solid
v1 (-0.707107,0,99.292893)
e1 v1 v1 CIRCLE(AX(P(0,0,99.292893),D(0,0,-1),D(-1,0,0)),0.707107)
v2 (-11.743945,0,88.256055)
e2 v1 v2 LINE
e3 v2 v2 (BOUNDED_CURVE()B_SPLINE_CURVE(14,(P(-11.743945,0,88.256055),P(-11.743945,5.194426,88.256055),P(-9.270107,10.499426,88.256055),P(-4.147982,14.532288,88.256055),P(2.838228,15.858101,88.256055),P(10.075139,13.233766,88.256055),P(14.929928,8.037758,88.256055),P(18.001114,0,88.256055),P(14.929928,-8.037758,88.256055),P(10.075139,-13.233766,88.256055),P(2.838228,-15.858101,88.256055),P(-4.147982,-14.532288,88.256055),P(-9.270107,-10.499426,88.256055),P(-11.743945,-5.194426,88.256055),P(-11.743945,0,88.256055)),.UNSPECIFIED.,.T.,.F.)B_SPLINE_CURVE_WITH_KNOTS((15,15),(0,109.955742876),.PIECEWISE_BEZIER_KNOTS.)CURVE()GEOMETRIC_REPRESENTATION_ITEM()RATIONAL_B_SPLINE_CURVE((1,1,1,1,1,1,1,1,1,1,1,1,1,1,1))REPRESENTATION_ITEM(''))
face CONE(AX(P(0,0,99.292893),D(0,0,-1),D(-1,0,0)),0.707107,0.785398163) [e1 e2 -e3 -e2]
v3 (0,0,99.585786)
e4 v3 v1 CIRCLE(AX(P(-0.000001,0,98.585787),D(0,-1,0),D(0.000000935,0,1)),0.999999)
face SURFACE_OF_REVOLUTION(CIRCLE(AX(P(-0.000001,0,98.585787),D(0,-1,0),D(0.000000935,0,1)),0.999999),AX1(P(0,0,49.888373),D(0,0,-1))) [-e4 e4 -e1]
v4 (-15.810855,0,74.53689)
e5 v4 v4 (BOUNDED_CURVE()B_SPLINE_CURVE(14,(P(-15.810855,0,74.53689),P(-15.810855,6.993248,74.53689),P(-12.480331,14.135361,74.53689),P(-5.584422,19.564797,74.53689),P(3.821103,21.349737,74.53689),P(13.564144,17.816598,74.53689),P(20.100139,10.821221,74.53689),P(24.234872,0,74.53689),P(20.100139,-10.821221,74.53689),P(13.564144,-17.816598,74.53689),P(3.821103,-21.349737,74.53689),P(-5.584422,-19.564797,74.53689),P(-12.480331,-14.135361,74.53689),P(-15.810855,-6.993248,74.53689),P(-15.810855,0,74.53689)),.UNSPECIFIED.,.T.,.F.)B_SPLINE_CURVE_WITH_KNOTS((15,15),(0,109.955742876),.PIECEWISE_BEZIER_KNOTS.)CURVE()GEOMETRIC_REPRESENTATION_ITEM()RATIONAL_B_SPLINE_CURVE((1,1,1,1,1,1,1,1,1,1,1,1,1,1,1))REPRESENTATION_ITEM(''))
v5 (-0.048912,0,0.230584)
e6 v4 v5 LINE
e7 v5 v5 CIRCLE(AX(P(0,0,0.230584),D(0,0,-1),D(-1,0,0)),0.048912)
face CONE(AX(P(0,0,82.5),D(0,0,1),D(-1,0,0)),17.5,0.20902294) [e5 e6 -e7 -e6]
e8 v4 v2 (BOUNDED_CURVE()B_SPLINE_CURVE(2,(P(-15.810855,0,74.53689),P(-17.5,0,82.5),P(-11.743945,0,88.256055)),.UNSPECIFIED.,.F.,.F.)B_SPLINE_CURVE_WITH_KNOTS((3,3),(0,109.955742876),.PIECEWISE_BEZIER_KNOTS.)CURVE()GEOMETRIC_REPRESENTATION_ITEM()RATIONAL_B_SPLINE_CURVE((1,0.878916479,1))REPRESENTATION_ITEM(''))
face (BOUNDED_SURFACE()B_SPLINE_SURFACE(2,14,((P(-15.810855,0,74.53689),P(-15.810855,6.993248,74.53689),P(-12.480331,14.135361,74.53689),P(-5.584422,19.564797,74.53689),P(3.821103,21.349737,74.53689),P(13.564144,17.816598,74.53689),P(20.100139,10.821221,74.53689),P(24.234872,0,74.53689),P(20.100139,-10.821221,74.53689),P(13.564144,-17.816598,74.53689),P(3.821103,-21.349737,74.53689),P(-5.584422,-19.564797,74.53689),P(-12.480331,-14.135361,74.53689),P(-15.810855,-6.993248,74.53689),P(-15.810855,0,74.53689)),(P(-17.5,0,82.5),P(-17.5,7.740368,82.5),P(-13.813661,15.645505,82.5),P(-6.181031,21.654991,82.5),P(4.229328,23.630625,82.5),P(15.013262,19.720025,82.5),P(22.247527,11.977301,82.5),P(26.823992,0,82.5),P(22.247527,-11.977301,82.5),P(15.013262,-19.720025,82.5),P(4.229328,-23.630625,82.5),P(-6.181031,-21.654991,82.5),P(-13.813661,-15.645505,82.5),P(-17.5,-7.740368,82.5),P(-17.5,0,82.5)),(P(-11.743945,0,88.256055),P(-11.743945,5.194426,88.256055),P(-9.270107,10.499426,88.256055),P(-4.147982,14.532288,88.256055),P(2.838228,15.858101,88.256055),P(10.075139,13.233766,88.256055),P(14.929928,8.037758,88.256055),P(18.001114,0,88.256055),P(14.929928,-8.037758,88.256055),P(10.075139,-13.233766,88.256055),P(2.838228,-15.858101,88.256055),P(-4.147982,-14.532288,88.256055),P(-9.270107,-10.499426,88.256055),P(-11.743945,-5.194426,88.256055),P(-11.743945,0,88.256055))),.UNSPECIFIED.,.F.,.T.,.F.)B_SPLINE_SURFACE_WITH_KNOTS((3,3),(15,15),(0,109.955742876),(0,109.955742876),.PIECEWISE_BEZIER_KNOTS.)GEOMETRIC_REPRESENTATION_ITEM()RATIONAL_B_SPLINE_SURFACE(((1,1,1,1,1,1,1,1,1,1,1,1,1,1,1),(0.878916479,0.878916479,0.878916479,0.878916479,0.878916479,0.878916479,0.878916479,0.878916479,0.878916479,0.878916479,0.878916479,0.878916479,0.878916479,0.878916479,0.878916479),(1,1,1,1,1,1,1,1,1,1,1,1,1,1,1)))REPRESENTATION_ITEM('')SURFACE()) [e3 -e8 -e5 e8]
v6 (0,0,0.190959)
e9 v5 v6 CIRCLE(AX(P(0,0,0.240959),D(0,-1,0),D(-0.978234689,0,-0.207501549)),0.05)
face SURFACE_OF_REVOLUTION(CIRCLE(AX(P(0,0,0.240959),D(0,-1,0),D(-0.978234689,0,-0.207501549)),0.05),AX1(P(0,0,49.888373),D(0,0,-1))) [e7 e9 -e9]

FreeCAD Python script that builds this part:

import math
import FreeCAD as App
import Part
import Sketcher
from FreeCAD import Vector
Q = App.Units.Quantity


def edges_at(feature, points):
    """Names of the edges that pass closest to the given points."""
    edges = feature.Shape.Edges
    near = lambda p: min(range(len(edges)), key=lambda i: edges[i].distToShape(Part.Vertex(*p))[0])
    return sorted({f"Edge{near(p) + 1}" for p in points})

doc = App.newDocument("Part")
body = doc.addObject("PartDesign::Body", "Body")

# Sketch on XZ plane
sketch1 = body.newObject("Sketcher::SketchObject", "Sketch")
sketch1.AttachmentSupport = (doc.getObject("XZ_Plane"), [""])
sketch1.MapMode = "FlatFace"
sketch1.addGeometry([
    Part.LineSegment(Vector(-17.5, 82.5, 0), Vector(-0.05, 0.23, 0)),  # 0
    Part.ArcOfCircle(Part.Circle(Vector(0, 0.24, 0), Vector(0, 0, 1), 0.05), math.radians(-168), math.radians(-90)),  # 1
    Part.LineSegment(Vector(0, 0.19, 0), Vector(0, 99.59, 0)),  # 2
    Part.ArcOfCircle(Part.Circle(Vector(0, 98.59, 0), Vector(0, 0, 1), 1), math.radians(90), math.radians(135)),  # 3
    Part.LineSegment(Vector(-0.71, 99.29, 0), Vector(-17.5, 82.5, 0)),  # 4
], False)
sketch1.addConstraint([
    Sketcher.Constraint("Coincident", 0, 2, 1, 1),
    Sketcher.Constraint("Coincident", 1, 2, 2, 1),
    Sketcher.Constraint("Coincident", 2, 2, 3, 1),
    Sketcher.Constraint("Tangent", 3, 2, 4, 1),
    Sketcher.Constraint("Coincident", 4, 2, 0, 1),
    Sketcher.Constraint("Vertical", 2),
    Sketcher.Constraint("PointOnObject", 1, 3, -2),
    Sketcher.Constraint("PointOnObject", 3, 3, -2),
    Sketcher.Constraint("PointOnObject", 1, 2, -2),
    Sketcher.Constraint("Radius", 3, Q("0.999999 mm")),
    Sketcher.Constraint("Angle", 4, Q("-135 deg")),
    Sketcher.Constraint("Radius", 1, Q("0.05 mm")),
    Sketcher.Constraint("DistanceX", 4, 2, -1, 1, Q("17.5 mm")),
    Sketcher.Constraint("DistanceY", -1, 1, 4, 2, Q("82.5 mm")),
    Sketcher.Constraint("DistanceY", 2, 1, 2, 2, Q("99.394827 mm")),
    Sketcher.Constraint("DistanceX", 0, 2, -1, 1, Q("0.048912 mm")),
])
revolution = body.newObject("PartDesign::Revolution", "Revolution")
revolution.Profile = sketch1
revolution.ReferenceAxis = (sketch1, ["V_Axis"])
revolution.Angle = 360
doc.recompute()

fillet = body.newObject("PartDesign::Fillet", "Fillet")
fillet.Base = (revolution, edges_at(revolution, [(17.5, 0, 82.5)]))
fillet.Radius = 15

doc.recompute()
